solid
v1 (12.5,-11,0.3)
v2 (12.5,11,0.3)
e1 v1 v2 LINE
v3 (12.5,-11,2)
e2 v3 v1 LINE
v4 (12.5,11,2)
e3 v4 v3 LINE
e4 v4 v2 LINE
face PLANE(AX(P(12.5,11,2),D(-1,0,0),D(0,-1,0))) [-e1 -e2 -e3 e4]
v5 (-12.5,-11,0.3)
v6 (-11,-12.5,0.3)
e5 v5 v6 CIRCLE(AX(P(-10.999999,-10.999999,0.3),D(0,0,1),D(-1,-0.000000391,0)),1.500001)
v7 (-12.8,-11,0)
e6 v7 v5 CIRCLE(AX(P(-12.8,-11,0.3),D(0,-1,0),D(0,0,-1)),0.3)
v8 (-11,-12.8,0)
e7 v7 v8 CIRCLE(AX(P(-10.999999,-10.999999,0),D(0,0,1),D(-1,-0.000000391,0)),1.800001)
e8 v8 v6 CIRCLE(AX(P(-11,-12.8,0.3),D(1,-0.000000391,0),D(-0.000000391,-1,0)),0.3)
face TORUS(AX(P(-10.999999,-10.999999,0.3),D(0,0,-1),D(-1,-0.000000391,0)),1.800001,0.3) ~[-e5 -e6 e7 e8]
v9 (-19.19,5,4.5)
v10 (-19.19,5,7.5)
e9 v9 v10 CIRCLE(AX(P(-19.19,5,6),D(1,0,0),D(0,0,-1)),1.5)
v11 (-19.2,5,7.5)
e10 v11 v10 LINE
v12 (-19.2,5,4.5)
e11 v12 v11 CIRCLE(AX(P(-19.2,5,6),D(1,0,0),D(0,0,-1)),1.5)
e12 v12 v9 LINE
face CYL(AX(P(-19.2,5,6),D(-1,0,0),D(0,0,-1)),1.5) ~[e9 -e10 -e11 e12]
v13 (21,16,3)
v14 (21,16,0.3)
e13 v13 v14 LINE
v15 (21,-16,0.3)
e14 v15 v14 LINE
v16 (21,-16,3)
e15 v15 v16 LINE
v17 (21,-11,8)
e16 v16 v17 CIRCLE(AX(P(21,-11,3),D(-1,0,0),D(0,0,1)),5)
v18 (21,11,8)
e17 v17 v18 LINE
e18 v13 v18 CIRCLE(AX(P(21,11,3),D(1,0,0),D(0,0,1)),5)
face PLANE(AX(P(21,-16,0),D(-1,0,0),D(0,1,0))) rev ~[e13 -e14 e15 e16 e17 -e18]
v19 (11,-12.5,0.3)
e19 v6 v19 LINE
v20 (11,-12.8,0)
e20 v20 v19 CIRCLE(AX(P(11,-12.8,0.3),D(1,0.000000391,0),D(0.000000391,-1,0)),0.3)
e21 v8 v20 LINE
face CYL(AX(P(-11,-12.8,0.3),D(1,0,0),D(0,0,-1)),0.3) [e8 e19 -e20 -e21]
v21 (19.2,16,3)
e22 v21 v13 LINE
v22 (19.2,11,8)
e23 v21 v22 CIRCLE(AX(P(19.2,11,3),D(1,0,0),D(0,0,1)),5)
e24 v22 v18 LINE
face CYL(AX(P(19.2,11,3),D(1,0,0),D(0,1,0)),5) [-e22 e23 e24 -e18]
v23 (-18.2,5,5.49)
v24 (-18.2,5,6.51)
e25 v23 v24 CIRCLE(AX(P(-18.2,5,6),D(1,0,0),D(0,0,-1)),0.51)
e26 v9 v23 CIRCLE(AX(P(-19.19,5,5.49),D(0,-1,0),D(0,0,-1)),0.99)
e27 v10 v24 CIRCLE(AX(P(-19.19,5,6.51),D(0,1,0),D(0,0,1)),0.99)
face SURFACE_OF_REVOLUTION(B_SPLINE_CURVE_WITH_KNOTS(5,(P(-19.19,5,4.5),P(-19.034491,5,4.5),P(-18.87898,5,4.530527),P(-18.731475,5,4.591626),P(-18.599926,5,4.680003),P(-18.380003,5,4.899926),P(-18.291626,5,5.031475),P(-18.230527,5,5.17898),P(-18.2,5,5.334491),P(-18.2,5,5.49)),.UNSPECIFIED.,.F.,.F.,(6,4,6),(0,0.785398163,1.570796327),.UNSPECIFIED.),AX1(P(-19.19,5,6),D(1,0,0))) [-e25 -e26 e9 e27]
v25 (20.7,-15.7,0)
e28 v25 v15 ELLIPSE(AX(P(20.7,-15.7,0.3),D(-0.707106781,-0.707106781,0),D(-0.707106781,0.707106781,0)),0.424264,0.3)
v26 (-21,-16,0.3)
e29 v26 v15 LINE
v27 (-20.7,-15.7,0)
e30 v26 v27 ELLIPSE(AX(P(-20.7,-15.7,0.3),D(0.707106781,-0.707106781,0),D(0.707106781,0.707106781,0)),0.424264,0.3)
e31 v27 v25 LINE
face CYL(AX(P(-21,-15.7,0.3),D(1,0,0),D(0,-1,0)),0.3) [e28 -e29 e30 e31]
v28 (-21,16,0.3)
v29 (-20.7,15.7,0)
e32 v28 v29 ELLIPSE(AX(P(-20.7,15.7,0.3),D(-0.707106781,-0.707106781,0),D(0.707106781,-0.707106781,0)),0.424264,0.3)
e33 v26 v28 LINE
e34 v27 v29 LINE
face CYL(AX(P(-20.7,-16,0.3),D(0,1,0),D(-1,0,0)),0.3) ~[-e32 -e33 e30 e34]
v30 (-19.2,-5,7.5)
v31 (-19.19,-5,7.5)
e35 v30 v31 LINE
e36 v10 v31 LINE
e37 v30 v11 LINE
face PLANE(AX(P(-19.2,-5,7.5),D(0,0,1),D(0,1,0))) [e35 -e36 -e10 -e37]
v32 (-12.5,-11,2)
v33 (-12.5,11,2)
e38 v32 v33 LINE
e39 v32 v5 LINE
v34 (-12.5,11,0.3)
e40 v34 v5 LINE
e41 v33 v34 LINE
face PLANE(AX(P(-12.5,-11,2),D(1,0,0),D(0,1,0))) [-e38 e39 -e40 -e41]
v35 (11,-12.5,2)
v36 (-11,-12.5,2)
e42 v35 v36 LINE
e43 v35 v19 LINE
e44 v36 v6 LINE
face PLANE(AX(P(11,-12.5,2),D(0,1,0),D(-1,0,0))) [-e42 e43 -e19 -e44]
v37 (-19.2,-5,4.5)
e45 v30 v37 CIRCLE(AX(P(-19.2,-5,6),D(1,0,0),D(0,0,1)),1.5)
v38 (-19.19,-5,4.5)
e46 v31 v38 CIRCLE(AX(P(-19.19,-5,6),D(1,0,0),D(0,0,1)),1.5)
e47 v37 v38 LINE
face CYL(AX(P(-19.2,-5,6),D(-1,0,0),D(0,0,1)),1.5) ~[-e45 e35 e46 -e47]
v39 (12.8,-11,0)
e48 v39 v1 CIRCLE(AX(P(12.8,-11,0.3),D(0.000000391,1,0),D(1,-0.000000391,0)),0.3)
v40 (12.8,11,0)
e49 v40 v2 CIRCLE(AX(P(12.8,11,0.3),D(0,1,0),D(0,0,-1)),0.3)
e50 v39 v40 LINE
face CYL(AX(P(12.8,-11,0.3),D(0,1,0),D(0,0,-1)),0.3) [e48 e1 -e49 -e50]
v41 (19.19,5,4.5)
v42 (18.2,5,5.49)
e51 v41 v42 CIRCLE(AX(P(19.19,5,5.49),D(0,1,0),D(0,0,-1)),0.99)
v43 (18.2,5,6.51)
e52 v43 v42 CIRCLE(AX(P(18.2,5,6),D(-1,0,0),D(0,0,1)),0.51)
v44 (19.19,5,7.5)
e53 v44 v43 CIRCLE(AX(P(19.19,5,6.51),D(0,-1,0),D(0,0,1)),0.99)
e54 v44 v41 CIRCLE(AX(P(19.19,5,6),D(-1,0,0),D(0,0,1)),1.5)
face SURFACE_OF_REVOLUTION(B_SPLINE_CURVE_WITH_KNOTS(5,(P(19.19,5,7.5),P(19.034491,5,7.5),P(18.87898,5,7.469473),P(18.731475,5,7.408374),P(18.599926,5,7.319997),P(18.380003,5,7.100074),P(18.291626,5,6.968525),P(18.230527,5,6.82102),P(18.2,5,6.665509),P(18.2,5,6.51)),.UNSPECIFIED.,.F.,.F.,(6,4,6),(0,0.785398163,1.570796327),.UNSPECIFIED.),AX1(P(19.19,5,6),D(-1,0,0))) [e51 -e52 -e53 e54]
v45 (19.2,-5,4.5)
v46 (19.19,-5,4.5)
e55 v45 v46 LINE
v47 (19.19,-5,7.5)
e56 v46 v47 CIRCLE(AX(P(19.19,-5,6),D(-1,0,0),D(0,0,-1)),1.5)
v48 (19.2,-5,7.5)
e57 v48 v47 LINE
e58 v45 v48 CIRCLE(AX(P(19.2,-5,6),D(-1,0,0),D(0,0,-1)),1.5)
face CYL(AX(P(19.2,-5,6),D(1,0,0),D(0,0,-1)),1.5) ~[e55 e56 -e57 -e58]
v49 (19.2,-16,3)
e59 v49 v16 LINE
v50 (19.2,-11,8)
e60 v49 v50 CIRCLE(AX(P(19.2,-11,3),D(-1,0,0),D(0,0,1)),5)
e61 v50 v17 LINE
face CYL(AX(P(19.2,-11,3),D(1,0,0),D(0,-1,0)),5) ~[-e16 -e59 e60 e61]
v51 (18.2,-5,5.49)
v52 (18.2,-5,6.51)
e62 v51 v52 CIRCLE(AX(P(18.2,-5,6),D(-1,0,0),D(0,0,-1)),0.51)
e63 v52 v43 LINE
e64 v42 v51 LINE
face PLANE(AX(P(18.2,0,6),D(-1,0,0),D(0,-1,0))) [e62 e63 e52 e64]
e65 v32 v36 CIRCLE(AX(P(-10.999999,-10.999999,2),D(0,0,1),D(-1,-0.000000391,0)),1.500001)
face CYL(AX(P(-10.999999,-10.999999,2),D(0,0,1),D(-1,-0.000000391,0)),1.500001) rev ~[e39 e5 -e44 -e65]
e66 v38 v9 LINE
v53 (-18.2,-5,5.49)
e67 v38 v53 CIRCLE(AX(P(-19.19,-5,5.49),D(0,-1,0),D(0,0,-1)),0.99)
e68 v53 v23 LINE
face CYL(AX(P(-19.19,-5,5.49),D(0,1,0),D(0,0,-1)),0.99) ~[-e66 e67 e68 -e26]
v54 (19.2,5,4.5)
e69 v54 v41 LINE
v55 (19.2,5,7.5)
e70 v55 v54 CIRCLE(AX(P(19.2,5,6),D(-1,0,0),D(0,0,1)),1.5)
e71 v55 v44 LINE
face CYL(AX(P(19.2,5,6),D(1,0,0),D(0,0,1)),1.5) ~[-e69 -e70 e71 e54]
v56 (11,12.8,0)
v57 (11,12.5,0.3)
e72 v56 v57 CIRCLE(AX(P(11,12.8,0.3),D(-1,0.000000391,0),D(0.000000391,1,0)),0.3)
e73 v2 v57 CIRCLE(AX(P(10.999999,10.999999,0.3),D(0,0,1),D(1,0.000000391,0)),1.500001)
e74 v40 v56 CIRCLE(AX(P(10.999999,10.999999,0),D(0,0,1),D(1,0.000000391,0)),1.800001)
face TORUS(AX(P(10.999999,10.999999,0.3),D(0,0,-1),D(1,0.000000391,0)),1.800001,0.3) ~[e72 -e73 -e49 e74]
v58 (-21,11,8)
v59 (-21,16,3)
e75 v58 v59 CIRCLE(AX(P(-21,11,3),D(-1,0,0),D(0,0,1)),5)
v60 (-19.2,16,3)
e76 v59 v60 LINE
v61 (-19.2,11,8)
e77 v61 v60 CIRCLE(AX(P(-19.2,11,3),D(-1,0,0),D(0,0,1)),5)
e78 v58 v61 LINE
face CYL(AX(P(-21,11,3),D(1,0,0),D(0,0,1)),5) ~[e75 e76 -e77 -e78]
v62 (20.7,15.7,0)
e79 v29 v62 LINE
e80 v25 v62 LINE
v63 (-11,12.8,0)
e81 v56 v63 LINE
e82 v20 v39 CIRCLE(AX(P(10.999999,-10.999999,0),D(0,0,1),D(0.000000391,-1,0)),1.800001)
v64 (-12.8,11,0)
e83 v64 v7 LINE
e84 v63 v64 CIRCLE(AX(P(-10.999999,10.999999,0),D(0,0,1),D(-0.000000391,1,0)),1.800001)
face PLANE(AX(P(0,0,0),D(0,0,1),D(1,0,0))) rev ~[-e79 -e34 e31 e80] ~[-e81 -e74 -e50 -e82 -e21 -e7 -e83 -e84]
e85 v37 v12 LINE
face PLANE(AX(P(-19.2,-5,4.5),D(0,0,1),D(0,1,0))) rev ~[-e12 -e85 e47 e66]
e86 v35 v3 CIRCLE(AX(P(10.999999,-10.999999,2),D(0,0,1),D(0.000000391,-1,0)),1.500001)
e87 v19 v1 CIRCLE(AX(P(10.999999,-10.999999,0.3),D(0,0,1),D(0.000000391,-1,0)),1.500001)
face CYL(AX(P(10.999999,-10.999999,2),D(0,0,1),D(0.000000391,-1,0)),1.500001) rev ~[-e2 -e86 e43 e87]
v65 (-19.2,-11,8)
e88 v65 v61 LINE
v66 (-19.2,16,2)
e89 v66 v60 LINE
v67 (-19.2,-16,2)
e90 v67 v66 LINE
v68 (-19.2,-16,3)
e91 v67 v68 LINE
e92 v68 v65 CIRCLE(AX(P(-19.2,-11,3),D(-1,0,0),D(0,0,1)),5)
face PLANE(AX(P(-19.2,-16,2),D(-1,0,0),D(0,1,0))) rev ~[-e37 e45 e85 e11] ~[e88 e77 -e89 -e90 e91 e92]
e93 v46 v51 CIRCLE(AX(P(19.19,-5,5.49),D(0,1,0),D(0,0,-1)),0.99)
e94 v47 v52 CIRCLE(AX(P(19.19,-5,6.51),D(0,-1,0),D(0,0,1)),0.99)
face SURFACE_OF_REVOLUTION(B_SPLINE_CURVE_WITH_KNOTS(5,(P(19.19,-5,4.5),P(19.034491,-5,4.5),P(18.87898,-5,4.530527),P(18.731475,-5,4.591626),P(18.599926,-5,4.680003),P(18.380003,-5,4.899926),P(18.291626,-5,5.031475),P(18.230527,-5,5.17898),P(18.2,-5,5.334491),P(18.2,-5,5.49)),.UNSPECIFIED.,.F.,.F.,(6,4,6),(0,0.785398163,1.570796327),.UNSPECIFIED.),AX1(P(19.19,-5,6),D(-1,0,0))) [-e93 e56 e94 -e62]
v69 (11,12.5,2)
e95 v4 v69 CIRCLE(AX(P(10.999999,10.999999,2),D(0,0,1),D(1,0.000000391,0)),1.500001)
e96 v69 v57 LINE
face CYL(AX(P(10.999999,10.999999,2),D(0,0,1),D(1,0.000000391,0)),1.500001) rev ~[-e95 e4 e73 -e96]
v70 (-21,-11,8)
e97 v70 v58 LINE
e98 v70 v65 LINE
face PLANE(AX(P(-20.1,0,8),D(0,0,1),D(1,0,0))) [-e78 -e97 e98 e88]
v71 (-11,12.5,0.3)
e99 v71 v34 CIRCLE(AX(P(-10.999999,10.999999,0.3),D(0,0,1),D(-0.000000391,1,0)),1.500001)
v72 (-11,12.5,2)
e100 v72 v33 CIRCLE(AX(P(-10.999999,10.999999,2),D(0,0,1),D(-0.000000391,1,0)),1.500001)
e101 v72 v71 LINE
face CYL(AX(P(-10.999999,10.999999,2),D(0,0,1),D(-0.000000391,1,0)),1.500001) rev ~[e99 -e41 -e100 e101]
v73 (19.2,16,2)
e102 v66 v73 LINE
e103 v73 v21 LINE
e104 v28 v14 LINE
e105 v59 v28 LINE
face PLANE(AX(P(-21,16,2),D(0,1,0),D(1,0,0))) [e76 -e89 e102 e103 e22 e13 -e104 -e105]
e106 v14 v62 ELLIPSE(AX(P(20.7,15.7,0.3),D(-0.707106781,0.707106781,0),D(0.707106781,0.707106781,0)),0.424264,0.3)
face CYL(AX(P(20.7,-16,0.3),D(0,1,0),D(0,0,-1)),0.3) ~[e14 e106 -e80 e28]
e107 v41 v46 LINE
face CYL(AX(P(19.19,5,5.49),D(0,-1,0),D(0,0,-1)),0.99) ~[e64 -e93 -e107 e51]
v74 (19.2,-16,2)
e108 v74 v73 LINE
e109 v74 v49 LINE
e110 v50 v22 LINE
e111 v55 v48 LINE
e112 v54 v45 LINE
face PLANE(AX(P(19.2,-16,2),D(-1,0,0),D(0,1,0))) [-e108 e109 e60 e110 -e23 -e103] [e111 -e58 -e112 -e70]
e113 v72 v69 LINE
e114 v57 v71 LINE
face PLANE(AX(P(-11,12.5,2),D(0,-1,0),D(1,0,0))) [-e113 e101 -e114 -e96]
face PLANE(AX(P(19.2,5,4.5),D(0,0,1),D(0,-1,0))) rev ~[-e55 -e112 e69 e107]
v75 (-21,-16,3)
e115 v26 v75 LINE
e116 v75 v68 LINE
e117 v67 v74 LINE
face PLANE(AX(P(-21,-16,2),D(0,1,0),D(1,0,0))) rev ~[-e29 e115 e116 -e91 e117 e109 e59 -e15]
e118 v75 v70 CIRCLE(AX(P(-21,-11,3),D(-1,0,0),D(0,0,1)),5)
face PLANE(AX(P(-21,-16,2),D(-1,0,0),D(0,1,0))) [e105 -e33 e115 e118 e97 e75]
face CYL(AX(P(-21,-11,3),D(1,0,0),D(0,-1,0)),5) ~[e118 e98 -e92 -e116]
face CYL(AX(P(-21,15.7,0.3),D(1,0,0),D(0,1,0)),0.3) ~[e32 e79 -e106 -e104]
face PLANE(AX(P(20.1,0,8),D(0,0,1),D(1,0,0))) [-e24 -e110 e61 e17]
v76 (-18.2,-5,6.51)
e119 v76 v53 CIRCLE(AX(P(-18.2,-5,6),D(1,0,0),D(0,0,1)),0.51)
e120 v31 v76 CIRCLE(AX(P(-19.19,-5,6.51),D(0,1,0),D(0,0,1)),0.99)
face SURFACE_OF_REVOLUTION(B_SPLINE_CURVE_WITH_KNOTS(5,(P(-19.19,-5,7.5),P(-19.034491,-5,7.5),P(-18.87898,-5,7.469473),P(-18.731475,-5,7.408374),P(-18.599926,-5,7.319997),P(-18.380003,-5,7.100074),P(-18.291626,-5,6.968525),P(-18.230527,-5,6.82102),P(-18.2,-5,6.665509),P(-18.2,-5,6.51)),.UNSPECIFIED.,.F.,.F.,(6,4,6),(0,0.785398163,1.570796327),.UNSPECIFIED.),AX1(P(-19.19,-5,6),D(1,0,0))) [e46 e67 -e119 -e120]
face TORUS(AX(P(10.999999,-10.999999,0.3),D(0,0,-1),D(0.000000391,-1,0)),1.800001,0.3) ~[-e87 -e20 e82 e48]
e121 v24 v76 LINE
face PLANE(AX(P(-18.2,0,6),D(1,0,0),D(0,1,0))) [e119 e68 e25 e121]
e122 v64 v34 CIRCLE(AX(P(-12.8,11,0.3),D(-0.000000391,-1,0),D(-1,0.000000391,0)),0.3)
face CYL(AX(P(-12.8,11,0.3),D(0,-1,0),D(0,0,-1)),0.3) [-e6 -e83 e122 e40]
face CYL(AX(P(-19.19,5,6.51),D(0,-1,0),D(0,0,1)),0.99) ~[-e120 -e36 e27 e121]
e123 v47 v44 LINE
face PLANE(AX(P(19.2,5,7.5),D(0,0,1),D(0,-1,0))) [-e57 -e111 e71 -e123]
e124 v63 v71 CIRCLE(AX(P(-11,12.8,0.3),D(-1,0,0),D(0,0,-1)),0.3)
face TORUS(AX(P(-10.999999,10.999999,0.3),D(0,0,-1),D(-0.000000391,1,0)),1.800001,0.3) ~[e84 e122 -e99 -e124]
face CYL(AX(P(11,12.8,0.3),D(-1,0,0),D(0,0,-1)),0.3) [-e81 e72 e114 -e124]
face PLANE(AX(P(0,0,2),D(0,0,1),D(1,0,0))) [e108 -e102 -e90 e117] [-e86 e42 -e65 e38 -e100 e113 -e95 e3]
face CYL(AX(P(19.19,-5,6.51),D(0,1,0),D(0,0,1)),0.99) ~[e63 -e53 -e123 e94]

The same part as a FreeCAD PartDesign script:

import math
import FreeCAD as App
import Part
import Sketcher

V = App.Vector


def edges_at(feature, points):
    """Names of the edges that pass closest to the given points."""
    edges = feature.Shape.Edges
    near = lambda p: min(range(len(edges)), key=lambda i: edges[i].distToShape(Part.Vertex(*p))[0])
    return sorted({f"Edge{near(p) + 1}" for p in points})


def add_polygon(sketch, points):
    """Adds a closed chain of lines whose ends are joined by coincident constraints."""
    first, n = sketch.GeometryCount, len(points)
    for a, b in zip(points, points[1:] + points[:1]):
        sketch.addGeometry(Part.LineSegment(App.Vector(*a, 0), App.Vector(*b, 0)), False)
    for i in range(n):
        sketch.addConstraint(Sketcher.Constraint("Coincident", first + i, 2, first + (i + 1) % n, 1))

doc = App.newDocument("Part")
body = doc.addObject("PartDesign::Body", "Body")

sketch1 = body.newObject("Sketcher::SketchObject", "Sketch")
sketch1.AttachmentSupport = (doc.getObject("XY_Plane"), [""])
sketch1.MapMode = "FlatFace"
add_polygon(sketch1, [(-21, 16), (-21, -16), (21, -16), (21, 16)])
sketch1.addConstraint([
    Sketcher.Constraint("Vertical", 0),
    Sketcher.Constraint("Horizontal", 1),
    Sketcher.Constraint("Vertical", 2),
    Sketcher.Constraint("Horizontal", 3),
    Sketcher.Constraint("Symmetric", 0, 2, 2, 2, -1, 1),
    Sketcher.Constraint("DistanceX", 1, 1, 1, 2, 42.0),
    Sketcher.Constraint("DistanceY", 0, 2, 0, 1, 32.0),
])
pad1 = body.newObject("PartDesign::Pad", "Pad")
pad1.Profile = sketch1
pad1.Length = 2

sketch2 = body.newObject("Sketcher::SketchObject", "Sketch001")
sketch2.AttachmentSupport = (doc.getObject("XY_Plane"), [""])
sketch2.MapMode = "FlatFace"
sketch2.AttachmentOffset = App.Placement(V(0, 0, 2), App.Rotation())
sketch2.addGeometry([
    Part.LineSegment(V(11, 12.5, 0), V(-11, 12.5, 0)),
    Part.ArcOfCircle(Part.Circle(V(-11, 11, 0), V(0, 0, 1), 1.5), math.radians(90), math.radians(180)),
    Part.LineSegment(V(-12.5, 11, 0), V(-12.5, -11, 0)),
    Part.ArcOfCircle(Part.Circle(V(-11, -11, 0), V(0, 0, 1), 1.5), math.radians(-180), math.radians(-90)),
    Part.LineSegment(V(-11, -12.5, 0), V(11, -12.5, 0)),
    Part.ArcOfCircle(Part.Circle(V(11, -11, 0), V(0, 0, 1), 1.5), math.radians(-90), math.radians(0)),
    Part.LineSegment(V(12.5, -11, 0), V(12.5, 11, 0)),
    Part.ArcOfCircle(Part.Circle(V(11, 11, 0), V(0, 0, 1), 1.5), math.radians(0), math.radians(90)),
], False)
sketch2.addConstraint([
    Sketcher.Constraint("Tangent", 0, 2, 1, 1),
    Sketcher.Constraint("Tangent", 1, 2, 2, 1),
    Sketcher.Constraint("Tangent", 2, 2, 3, 1),
    Sketcher.Constraint("Tangent", 3, 2, 4, 1),
    Sketcher.Constraint("Tangent", 4, 2, 5, 1),
    Sketcher.Constraint("Tangent", 5, 2, 6, 1),
    Sketcher.Constraint("Tangent", 6, 2, 7, 1),
    Sketcher.Constraint("Tangent", 7, 2, 0, 1),
    Sketcher.Constraint("Horizontal", 0),
    Sketcher.Constraint("Vertical", 2),
    Sketcher.Constraint("Horizontal", 4),
    Sketcher.Constraint("Vertical", 6),
    Sketcher.Constraint("Equal", 1, 3),
    Sketcher.Constraint("Equal", 3, 5),
    Sketcher.Constraint("Equal", 5, 7),
    Sketcher.Constraint("Symmetric", 1, 3, 5, 3, -1, 1),
    Sketcher.Constraint("Equal", 4, 2),
    Sketcher.Constraint("Radius", 1, 1.500001),
    Sketcher.Constraint("DistanceX", 0, 2, 0, 1, 22.0),
])
pocket1 = body.newObject("PartDesign::Pocket", "Pocket")
pocket1.Profile = sketch2
pocket1.Type = "ThroughAll"

sketch3 = body.newObject("Sketcher::SketchObject", "Sketch002")
sketch3.AttachmentSupport = (doc.getObject("XY_Plane"), [""])
sketch3.MapMode = "FlatFace"
sketch3.AttachmentOffset = App.Placement(V(0, 0, 2), App.Rotation())
add_polygon(sketch3, [(-21, 16), (-21, -16), (-19.2, -16), (-19.2, 16)])
add_polygon(sketch3, [(19.2, 16), (19.2, -16), (21, -16), (21, 16)])
sketch3.addConstraint([
    Sketcher.Constraint("Vertical", 0),
    Sketcher.Constraint("Horizontal", 1),
    Sketcher.Constraint("Vertical", 2),
    Sketcher.Constraint("Horizontal", 3),
    Sketcher.Constraint("Vertical", 4),
    Sketcher.Constraint("Horizontal", 5),
    Sketcher.Constraint("Vertical", 6),
    Sketcher.Constraint("Horizontal", 7),
    Sketcher.Constraint("Symmetric", 2, 2, 4, 2, -1, 1),
    Sketcher.Constraint("Symmetric", 0, 2, 6, 2, -1, 1),
    Sketcher.Constraint("Horizontal", 1, 2, 4, 2),
    Sketcher.Constraint("DistanceY", 0, 2, 0, 1, 32.0),
    Sketcher.Constraint("DistanceX", 1, 1, 1, 2, 1.8),
    Sketcher.Constraint("DistanceX", 0, 2, -1, 1, 21.0),
])
pad2 = body.newObject("PartDesign::Pad", "Pad001")
pad2.Profile = sketch3
pad2.Length = 6

sketch4 = body.newObject("Sketcher::SketchObject", "Sketch003")
sketch4.AttachmentSupport = (doc.getObject("YZ_Plane"), [""])
sketch4.MapMode = "FlatFace"
sketch4.AttachmentOffset = App.Placement(V(0, 0, -19.2), App.Rotation())
sketch4.addGeometry([
    Part.ArcOfCircle(Part.Circle(V(-5, 6, 0), V(0, 0, 1), 1.5), math.radians(90), math.radians(270)),
    Part.LineSegment(V(-5, 4.5, 0), V(5, 4.5, 0)),
    Part.ArcOfCircle(Part.Circle(V(5, 6, 0), V(0, 0, 1), 1.5), math.radians(-90), math.radians(90)),
    Part.LineSegment(V(5, 7.5, 0), V(-5, 7.5, 0)),
], False)
sketch4.addConstraint([
    Sketcher.Constraint("Tangent", 0, 2, 1, 1),
    Sketcher.Constraint("Tangent", 1, 2, 2, 1),
    Sketcher.Constraint("Tangent", 2, 2, 3, 1),
    Sketcher.Constraint("Tangent", 3, 2, 0, 1),
    Sketcher.Constraint("Horizontal", 1),
    Sketcher.Constraint("Horizontal", 3),
    Sketcher.Constraint("Radius", 0, 1.5),
    Sketcher.Constraint("DistanceX", 1, 1, 1, 2, 10.0),
    Sketcher.Constraint("DistanceX", 0, 3, -1, 1, 5.0),
    Sketcher.Constraint("DistanceY", -1, 1, 0, 3, 6.0),
])
pad3 = body.newObject("PartDesign::Pad", "Pad002")
pad3.Profile = sketch4
pad3.Length = 1

sketch5 = body.newObject("Sketcher::SketchObject", "Sketch004")
sketch5.AttachmentSupport = (doc.getObject("YZ_Plane"), [""])
sketch5.MapMode = "FlatFace"
sketch5.AttachmentOffset = App.Placement(V(0, 0, 19.2), App.Rotation())
sketch5.addGeometry([
    Part.ArcOfCircle(Part.Circle(V(5, 6, 0), V(0, 0, 1), 1.5), math.radians(-90), math.radians(90)),
    Part.LineSegment(V(5, 4.5, 0), V(-5, 4.5, 0)),
    Part.ArcOfCircle(Part.Circle(V(-5, 6, 0), V(0, 0, 1), 1.5), math.radians(90), math.radians(270)),
    Part.LineSegment(V(-5, 7.5, 0), V(5, 7.5, 0)),
], False)
sketch5.addConstraint([
    Sketcher.Constraint("Tangent", 0, 1, 1, 1),
    Sketcher.Constraint("Tangent", 1, 2, 2, 2),
    Sketcher.Constraint("Tangent", 2, 1, 3, 1),
    Sketcher.Constraint("Tangent", 3, 2, 0, 2),
    Sketcher.Constraint("Horizontal", 1),
    Sketcher.Constraint("Horizontal", 3),
    Sketcher.Constraint("Radius", 0, 1.5),
    Sketcher.Constraint("DistanceX", 1, 2, 1, 1, 10.0),
    Sketcher.Constraint("DistanceX", -1, 1, 0, 3, 5.0),
    Sketcher.Constraint("DistanceY", -1, 1, 0, 3, 6.0),
])
pad4 = body.newObject("PartDesign::Pad", "Pad003")
pad4.Profile = sketch5
pad4.Length = 1
pad4.Reversed = True
doc.recompute()

fillet = body.newObject("PartDesign::Fillet", "Fillet")
fillet.Base = (pad4, edges_at(pad4, [
    (18.2, 6.5, 6),
    (18.2, 0, 4.5),
    (18.2, -6.5, 6),
    (18.2, 0, 7.5),
    (-18.2, -6.5, 6),
    (-18.2, 0, 4.5),
    (-18.2, 6.5, 6),
    (-18.2, 0, 7.5),
]))
fillet.Radius = 0.99
doc.recompute()

fillet2 = body.newObject("PartDesign::Fillet", "Fillet001")
fillet2.Base = (fillet, edges_at(fillet, [
    (20.1, 16, 8),
    (20.1, -16, 8),
    (-20.1, 16, 8),
    (-20.1, -16, 8),
]))
fillet2.Radius = 5
doc.recompute()

fillet3 = body.newObject("PartDesign::Fillet", "Fillet002")
fillet3.Base = (fillet2, edges_at(fillet2, [
    (0, 16, 0),
    (-21, 0, 0),
    (21, 0, 0),
    (0, -16, 0),
    (12.061, -12.061, 0),
    (12.5, 0, 0),
    (12.061, 12.061, 0),
    (0, 12.5, 0),
    (-12.061, 12.061, 0),
    (-12.5, 0, 0),
    (-12.061, -12.061, 0),
    (0, -12.5, 0),
]))
fillet3.Radius = 0.3

doc.recompute()
